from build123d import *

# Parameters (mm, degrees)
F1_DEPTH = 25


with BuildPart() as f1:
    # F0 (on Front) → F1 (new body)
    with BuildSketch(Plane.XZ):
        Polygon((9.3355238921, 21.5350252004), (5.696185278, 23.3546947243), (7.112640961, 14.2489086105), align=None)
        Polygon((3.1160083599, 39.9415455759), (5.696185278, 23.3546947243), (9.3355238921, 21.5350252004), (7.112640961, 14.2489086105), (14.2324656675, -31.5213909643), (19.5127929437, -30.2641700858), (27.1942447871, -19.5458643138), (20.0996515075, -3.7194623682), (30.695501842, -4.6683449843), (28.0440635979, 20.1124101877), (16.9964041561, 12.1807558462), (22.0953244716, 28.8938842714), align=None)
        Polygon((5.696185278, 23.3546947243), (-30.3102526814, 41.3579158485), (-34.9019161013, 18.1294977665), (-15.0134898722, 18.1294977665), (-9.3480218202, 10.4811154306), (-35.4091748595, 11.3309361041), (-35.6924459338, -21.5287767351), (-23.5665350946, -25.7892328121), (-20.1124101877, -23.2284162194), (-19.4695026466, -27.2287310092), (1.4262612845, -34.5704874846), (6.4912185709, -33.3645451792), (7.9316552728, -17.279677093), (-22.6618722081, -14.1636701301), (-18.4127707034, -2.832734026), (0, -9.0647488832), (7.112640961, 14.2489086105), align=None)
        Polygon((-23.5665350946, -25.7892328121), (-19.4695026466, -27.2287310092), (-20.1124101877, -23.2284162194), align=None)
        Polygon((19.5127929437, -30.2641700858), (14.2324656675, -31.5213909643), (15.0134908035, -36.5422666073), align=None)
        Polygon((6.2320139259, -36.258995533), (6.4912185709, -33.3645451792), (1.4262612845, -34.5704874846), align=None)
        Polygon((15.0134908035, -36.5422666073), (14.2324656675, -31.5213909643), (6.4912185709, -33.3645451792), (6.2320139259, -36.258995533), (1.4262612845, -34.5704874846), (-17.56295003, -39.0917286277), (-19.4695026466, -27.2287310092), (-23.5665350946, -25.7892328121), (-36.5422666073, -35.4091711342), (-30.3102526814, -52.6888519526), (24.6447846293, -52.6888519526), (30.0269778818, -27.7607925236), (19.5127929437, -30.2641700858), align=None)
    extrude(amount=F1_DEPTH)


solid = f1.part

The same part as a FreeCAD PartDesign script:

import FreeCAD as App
import Part
import Sketcher

V = App.Vector

doc = App.newDocument("Part")
body = doc.addObject("PartDesign::Body", "Body")

sketch1 = body.newObject("Sketcher::SketchObject", "Sketch")
sketch1.AttachmentSupport = (doc.getObject("XZ_Plane"), [""])
sketch1.MapMode = "FlatFace"
sketch1.addGeometry([
    Part.LineSegment(V(3, 40, 0), V(6, 23, 0)),
    Part.LineSegment(V(6, 23, 0), V(-30, 41, 0)),
    Part.LineSegment(V(-30, 41, 0), V(-35, 18, 0)),
    Part.LineSegment(V(-35, 18, 0), V(-15, 18, 0)),
    Part.LineSegment(V(-15, 18, 0), V(-9, 10, 0)),
    Part.LineSegment(V(-9, 10, 0), V(-35, 11, 0)),
    Part.LineSegment(V(-35, 11, 0), V(-36, -22, 0)),
    Part.LineSegment(V(-36, -22, 0), V(-24, -26, 0)),
    Part.LineSegment(V(-24, -26, 0), V(-37, -35, 0)),
    Part.LineSegment(V(-37, -35, 0), V(-30, -53, 0)),
    Part.LineSegment(V(-30, -53, 0), V(25, -53, 0)),
    Part.LineSegment(V(25, -53, 0), V(30, -28, 0)),
    Part.LineSegment(V(30, -28, 0), V(20, -30, 0)),
    Part.LineSegment(V(20, -30, 0), V(27, -20, 0)),
    Part.LineSegment(V(27, -20, 0), V(20, -4, 0)),
    Part.LineSegment(V(20, -4, 0), V(31, -5, 0)),
    Part.LineSegment(V(31, -5, 0), V(28, 20, 0)),
    Part.LineSegment(V(28, 20, 0), V(17, 12, 0)),
    Part.LineSegment(V(17, 12, 0), V(22, 29, 0)),
    Part.LineSegment(V(22, 29, 0), V(3, 40, 0)),
    Part.LineSegment(V(-19, -27, 0), V(1, -35, 0)),
    Part.LineSegment(V(1, -35, 0), V(-18, -39, 0)),
    Part.LineSegment(V(-18, -39, 0), V(-19, -27, 0)),
    Part.LineSegment(V(6, -33, 0), V(8, -17, 0)),
    Part.LineSegment(V(8, -17, 0), V(-23, -14, 0)),
    Part.LineSegment(V(-23, -14, 0), V(-18, -3, 0)),
    Part.LineSegment(V(-18, -3, 0), V(0, -9, 0)),
    Part.LineSegment(V(0, -9, 0), V(7, 14, 0)),
    Part.LineSegment(V(7, 14, 0), V(14, -32, 0)),
    Part.LineSegment(V(14, -32, 0), V(6, -33, 0)),
], False)
sketch1.addConstraint([
    Sketcher.Constraint("Coincident", 0, 2, 1, 1),
    Sketcher.Constraint("Coincident", 1, 2, 2, 1),
    Sketcher.Constraint("Coincident", 2, 2, 3, 1),
    Sketcher.Constraint("Coincident", 3, 2, 4, 1),
    Sketcher.Constraint("Coincident", 4, 2, 5, 1),
    Sketcher.Constraint("Coincident", 5, 2, 6, 1),
    Sketcher.Constraint("Coincident", 6, 2, 7, 1),
    Sketcher.Constraint("Coincident", 7, 2, 8, 1),
    Sketcher.Constraint("Coincident", 8, 2, 9, 1),
    Sketcher.Constraint("Coincident", 9, 2, 10, 1),
    Sketcher.Constraint("Coincident", 10, 2, 11, 1),
    Sketcher.Constraint("Coincident", 11, 2, 12, 1),
    Sketcher.Constraint("Coincident", 12, 2, 13, 1),
    Sketcher.Constraint("Coincident", 13, 2, 14, 1),
    Sketcher.Constraint("Coincident", 14, 2, 15, 1),
    Sketcher.Constraint("Coincident", 15, 2, 16, 1),
    Sketcher.Constraint("Coincident", 16, 2, 17, 1),
    Sketcher.Constraint("Coincident", 17, 2, 18, 1),
    Sketcher.Constraint("Coincident", 18, 2, 19, 1),
    Sketcher.Constraint("Coincident", 19, 2, 0, 1),
    Sketcher.Constraint("Coincident", 20, 2, 21, 1),
    Sketcher.Constraint("Coincident", 21, 2, 22, 1),
    Sketcher.Constraint("Coincident", 22, 2, 20, 1),
    Sketcher.Constraint("Coincident", 23, 2, 24, 1),
    Sketcher.Constraint("Coincident", 24, 2, 25, 1),
    Sketcher.Constraint("Coincident", 25, 2, 26, 1),
    Sketcher.Constraint("Coincident", 26, 2, 27, 1),
    Sketcher.Constraint("Coincident", 27, 2, 28, 1),
    Sketcher.Constraint("Coincident", 28, 2, 29, 1),
    Sketcher.Constraint("Coincident", 29, 2, 23, 1),
    Sketcher.Constraint("Horizontal", 3),
    Sketcher.Constraint("Horizontal", 10),
    Sketcher.Constraint("PointOnObject", 26, 2, -2),
    Sketcher.Constraint("Parallel", 7, 20),
    Sketcher.Constraint("Parallel", 12, 21),
    Sketcher.Constraint("Perpendicular", 15, 23),
    Sketcher.Constraint("Parallel", 18, 27),
    Sketcher.Constraint("Parallel", 0, 28),
    Sketcher.Constraint("Parallel", 21, 29),
    Sketcher.Constraint("Vertical", 1, 2, 9, 2),
    Sketcher.Constraint("DistanceX", 4, 2, 11, 2, 39.375),
    Sketcher.Constraint("Distance", 12, 10.808098),
    Sketcher.Constraint("Distance", 27, 24.374501),
    Sketcher.Constraint("DistanceX", -1, 1, 15, 2, 30.695502),
    Sketcher.Constraint("DistanceX", 2, 2, 0, 2, 40.598101),
    Sketcher.Constraint("DistanceY", 4, 2, 1, 2, 30.8768),
    Sketcher.Constraint("DistanceY", 13, 2, 14, 2, 15.826402),
    Sketcher.Constraint("DistanceY", 15, 2, 17, 2, 16.849101),
    Sketcher.Constraint("DistanceX", 3, 2, 19, 2, 18.129498),
    Sketcher.Constraint("DistanceY", 22, 2, 7, 2, 1.439498),
    Sketcher.Constraint("DistanceY", 8, 2, 24, 2, 21.245501),
    Sketcher.Constraint("DistanceX", 24, 2, 25, 2, 4.249102),
    Sketcher.Constraint("DistanceY", 7, 2, 25, 2, 22.956499),
    Sketcher.Constraint("DistanceY", 27, 2, 16, 2, 5.863502),
    Sketcher.Constraint("DistanceY", 28, 2, 11, 2, 3.760598),
    Sketcher.Constraint("Distance", 0, 16.786332),
    Sketcher.Constraint("Distance", 9, 18.369142),
    Sketcher.Constraint("Distance", 17, 13.600071),
    Sketcher.Constraint("Distance", 19, 21.960539),
    Sketcher.Constraint("Distance", 20, 22.14801),
    Sketcher.Constraint("Distance", 26, 19.438831),
    Sketcher.Constraint("DistanceX", 3, 1, 3, 2, 19.888426),
    Sketcher.Constraint("DistanceX", 10, 1, 10, 2, 54.955037),
    Sketcher.Constraint("DistanceX", 3, 2, -1, 1, 15.01349),
    Sketcher.Constraint("DistanceX", 4, 2, -1, 1, 9.348022),
    Sketcher.Constraint("DistanceY", 8, 2, -1, 1, 35.409171),
    Sketcher.Constraint("DistanceY", 9, 2, -1, 1, 52.688852),
    Sketcher.Constraint("DistanceY", 12, 2, -1, 1, 30.26417),
    Sketcher.Constraint("DistanceX", -1, 1, 14, 2, 20.099652),
    Sketcher.Constraint("DistanceY", -1, 1, 16, 2, 20.11241),
    Sketcher.Constraint("DistanceX", -1, 1, 20, 2, 1.426261),
    Sketcher.Constraint("DistanceX", 21, 2, -1, 1, 17.56295),
    Sketcher.Constraint("DistanceY", 21, 2, -1, 1, 39.091729),
    Sketcher.Constraint("DistanceY", 22, 2, -1, 1, 27.228731),
    Sketcher.Constraint("DistanceX", 25, 2, -1, 1, 18.412771),
    Sketcher.Constraint("DistanceY", 28, 2, -1, 1, 31.521391),
    Sketcher.Constraint("DistanceX", -1, 1, 29, 2, 6.491219),
    Sketcher.Constraint("DistanceY", 0, 2, 1, 2, 18.003221),
    Sketcher.Constraint("DistanceY", 2, 2, 1, 2, 23.228418),
    Sketcher.Constraint("DistanceX", 1, 2, 4, 2, 20.962231),
    Sketcher.Constraint("DistanceX", 5, 2, 2, 2, 0.507259),
    Sketcher.Constraint("DistanceY", 5, 2, 2, 2, 6.798562),
    Sketcher.Constraint("DistanceX", 6, 2, 5, 2, 0.283271),
    Sketcher.Constraint("DistanceY", 6, 2, 0, 2, 44.883471),
    Sketcher.Constraint("DistanceX", 6, 2, 7, 2, 12.125911),
    Sketcher.Constraint("DistanceY", 11, 2, 13, 2, 8.214928),
    Sketcher.Constraint("DistanceX", 12, 2, 13, 2, 7.681452),
    Sketcher.Constraint("DistanceY", 13, 2, 15, 2, 14.877519),
    Sketcher.Constraint("DistanceX", 0, 2, 16, 2, 22.347878),
    Sketcher.Constraint("DistanceY", 20, 2, 23, 2, 17.29081),
])
pad1 = body.newObject("PartDesign::Pad", "Pad")
pad1.Profile = sketch1
pad1.Length = 25

doc.recompute()
